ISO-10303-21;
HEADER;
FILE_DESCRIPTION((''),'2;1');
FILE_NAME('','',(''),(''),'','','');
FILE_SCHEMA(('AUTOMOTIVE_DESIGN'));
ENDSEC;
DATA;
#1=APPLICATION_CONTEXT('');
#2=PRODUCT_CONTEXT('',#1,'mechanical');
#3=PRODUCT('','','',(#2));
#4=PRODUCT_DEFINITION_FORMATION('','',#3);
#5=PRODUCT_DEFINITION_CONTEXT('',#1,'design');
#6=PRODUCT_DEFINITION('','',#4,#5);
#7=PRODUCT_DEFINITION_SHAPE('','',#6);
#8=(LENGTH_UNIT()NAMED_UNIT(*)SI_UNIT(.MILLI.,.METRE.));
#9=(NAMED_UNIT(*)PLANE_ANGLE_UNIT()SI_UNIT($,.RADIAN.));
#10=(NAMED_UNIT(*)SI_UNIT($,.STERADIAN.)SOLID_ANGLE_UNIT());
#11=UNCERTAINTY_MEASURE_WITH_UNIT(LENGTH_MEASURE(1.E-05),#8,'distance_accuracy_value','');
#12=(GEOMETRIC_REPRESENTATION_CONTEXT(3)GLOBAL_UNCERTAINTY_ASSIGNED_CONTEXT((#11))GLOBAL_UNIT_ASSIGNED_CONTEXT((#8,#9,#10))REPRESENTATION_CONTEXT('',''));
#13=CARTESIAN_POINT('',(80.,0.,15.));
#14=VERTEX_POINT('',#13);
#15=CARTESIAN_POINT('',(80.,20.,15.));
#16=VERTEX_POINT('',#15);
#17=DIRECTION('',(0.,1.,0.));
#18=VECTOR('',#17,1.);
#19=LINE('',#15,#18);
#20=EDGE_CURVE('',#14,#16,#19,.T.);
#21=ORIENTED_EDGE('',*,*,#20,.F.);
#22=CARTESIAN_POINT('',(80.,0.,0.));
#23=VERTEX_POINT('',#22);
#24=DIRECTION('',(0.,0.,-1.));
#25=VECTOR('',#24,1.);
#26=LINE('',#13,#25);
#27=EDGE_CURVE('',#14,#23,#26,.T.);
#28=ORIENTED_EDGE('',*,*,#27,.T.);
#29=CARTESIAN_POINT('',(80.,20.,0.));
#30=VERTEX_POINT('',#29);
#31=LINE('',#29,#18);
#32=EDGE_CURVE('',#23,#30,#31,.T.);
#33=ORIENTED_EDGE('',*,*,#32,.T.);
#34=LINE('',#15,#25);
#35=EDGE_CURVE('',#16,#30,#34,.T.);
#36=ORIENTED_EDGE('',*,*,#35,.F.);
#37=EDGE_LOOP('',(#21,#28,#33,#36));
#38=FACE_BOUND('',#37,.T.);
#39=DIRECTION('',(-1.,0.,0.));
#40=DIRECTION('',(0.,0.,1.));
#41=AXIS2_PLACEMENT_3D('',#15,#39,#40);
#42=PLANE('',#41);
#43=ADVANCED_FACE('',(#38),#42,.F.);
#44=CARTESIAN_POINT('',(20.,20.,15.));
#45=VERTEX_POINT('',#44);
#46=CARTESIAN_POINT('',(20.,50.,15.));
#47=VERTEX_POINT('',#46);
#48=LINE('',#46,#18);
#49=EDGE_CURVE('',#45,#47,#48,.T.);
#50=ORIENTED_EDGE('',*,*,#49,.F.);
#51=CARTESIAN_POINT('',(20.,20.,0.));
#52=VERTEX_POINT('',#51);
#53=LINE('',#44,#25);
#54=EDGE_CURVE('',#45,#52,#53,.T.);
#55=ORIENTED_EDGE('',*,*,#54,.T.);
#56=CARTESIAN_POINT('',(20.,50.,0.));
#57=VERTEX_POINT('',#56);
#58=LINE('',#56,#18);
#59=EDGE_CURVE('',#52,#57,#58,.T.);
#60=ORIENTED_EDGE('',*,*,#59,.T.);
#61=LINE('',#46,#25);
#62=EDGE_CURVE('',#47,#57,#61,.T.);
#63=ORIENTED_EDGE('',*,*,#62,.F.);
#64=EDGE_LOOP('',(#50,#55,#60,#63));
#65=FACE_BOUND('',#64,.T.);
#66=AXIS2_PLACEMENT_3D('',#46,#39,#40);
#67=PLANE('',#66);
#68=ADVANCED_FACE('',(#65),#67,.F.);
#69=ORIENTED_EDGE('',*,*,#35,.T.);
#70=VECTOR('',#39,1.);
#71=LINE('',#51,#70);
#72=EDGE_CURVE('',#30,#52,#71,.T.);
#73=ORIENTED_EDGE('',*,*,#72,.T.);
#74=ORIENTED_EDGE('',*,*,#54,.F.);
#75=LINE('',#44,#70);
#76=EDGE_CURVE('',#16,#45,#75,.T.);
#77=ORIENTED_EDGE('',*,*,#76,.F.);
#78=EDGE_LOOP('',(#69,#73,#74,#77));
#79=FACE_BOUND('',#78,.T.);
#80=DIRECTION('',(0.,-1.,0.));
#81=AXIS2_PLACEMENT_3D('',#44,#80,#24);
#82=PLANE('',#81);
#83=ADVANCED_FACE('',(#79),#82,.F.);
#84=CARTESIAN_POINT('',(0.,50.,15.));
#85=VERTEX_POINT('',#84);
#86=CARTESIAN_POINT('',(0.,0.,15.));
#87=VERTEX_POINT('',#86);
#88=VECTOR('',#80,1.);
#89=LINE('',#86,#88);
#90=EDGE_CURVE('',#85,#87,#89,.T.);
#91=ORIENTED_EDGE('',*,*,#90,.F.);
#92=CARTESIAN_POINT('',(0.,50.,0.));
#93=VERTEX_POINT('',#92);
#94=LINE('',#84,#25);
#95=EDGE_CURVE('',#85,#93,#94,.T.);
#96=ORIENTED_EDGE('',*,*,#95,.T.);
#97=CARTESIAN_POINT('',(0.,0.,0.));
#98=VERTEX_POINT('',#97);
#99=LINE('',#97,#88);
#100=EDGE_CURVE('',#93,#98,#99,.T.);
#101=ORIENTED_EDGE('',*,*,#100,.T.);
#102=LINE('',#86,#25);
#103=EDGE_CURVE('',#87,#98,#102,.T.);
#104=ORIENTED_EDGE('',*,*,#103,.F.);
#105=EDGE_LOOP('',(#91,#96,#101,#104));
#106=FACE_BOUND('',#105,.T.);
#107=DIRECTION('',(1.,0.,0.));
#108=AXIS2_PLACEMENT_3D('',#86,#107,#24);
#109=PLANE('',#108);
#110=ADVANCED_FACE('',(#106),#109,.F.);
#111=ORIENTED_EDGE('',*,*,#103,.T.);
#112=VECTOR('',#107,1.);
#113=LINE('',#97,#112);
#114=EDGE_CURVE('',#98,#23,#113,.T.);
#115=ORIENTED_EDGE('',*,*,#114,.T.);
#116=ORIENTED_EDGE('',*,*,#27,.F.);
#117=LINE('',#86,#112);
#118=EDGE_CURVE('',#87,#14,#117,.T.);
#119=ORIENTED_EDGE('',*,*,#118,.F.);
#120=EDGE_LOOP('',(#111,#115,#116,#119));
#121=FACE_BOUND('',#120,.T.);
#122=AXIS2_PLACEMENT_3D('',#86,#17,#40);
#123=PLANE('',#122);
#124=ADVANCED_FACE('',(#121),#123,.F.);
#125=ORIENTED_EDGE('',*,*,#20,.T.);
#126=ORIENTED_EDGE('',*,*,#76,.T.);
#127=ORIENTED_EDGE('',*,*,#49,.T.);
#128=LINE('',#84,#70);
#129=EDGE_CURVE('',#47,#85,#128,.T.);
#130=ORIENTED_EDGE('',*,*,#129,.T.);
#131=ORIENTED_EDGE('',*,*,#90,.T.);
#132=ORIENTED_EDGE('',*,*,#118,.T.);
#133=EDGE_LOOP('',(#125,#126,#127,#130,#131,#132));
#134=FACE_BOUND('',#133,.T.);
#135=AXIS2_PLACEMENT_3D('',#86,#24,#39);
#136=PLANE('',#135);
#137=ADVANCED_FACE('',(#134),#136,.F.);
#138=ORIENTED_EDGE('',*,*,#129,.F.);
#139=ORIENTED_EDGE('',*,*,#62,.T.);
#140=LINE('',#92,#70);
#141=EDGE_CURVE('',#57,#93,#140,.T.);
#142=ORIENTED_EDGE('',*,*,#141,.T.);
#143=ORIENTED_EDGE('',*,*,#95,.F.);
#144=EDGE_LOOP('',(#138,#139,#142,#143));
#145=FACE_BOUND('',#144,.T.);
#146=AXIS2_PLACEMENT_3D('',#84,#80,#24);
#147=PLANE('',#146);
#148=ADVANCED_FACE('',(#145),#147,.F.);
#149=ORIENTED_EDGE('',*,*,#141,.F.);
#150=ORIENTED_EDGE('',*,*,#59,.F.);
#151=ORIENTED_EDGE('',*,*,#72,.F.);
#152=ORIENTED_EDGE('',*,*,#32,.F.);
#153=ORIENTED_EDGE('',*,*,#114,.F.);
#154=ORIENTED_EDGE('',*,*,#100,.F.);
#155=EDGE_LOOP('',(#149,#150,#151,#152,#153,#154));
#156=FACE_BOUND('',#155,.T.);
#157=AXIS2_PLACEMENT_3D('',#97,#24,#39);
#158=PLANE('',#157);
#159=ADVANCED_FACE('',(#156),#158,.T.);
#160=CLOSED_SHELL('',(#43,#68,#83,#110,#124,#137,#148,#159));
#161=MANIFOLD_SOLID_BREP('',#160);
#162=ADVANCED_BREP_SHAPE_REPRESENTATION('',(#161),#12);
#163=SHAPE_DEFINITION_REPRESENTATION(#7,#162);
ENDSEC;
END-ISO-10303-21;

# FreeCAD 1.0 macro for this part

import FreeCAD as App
import Part
import Sketcher
Q = App.Units.Quantity


def add_polygon(sketch, points):
    """Adds a closed chain of lines whose ends are joined by coincident constraints."""
    first, n = sketch.GeometryCount, len(points)
    for a, b in zip(points, points[1:] + points[:1]):
        sketch.addGeometry(Part.LineSegment(App.Vector(*a, 0), App.Vector(*b, 0)), False)
    for i in range(n):
        sketch.addConstraint(Sketcher.Constraint("Coincident", first + i, 2, first + (i + 1) % n, 1))

doc = App.newDocument("Part")
body = doc.addObject("PartDesign::Body", "Body")

sketch1 = body.newObject("Sketcher::SketchObject", "Sketch")
sketch1.AttachmentSupport = (doc.getObject("XY_Plane"), [""])
sketch1.MapMode = "FlatFace"
add_polygon(sketch1, [(0, 50), (0, 0), (80, 0), (80, 20), (20, 20), (20, 50)])
sketch1.addConstraint([
    Sketcher.Constraint("Vertical", 0),
    Sketcher.Constraint("Horizontal", 1),
    Sketcher.Constraint("Vertical", 2),
    Sketcher.Constraint("Horizontal", 3),
    Sketcher.Constraint("Vertical", 4),
    Sketcher.Constraint("Horizontal", 5),
    Sketcher.Constraint("Coincident", 0, 2, -1, 1),
    Sketcher.Constraint("Equal", 5, 2),
    Sketcher.Constraint("DistanceX", 1, 1, 1, 2, Q("80 mm")),
    Sketcher.Constraint("DistanceX", 3, 2, 3, 1, Q("60 mm")),
    Sketcher.Constraint("DistanceY", 0, 2, 0, 1, Q("50 mm")),
])
pad1 = body.newObject("PartDesign::Pad", "Pad")
pad1.Profile = sketch1
pad1.Length = 15

doc.recompute()
